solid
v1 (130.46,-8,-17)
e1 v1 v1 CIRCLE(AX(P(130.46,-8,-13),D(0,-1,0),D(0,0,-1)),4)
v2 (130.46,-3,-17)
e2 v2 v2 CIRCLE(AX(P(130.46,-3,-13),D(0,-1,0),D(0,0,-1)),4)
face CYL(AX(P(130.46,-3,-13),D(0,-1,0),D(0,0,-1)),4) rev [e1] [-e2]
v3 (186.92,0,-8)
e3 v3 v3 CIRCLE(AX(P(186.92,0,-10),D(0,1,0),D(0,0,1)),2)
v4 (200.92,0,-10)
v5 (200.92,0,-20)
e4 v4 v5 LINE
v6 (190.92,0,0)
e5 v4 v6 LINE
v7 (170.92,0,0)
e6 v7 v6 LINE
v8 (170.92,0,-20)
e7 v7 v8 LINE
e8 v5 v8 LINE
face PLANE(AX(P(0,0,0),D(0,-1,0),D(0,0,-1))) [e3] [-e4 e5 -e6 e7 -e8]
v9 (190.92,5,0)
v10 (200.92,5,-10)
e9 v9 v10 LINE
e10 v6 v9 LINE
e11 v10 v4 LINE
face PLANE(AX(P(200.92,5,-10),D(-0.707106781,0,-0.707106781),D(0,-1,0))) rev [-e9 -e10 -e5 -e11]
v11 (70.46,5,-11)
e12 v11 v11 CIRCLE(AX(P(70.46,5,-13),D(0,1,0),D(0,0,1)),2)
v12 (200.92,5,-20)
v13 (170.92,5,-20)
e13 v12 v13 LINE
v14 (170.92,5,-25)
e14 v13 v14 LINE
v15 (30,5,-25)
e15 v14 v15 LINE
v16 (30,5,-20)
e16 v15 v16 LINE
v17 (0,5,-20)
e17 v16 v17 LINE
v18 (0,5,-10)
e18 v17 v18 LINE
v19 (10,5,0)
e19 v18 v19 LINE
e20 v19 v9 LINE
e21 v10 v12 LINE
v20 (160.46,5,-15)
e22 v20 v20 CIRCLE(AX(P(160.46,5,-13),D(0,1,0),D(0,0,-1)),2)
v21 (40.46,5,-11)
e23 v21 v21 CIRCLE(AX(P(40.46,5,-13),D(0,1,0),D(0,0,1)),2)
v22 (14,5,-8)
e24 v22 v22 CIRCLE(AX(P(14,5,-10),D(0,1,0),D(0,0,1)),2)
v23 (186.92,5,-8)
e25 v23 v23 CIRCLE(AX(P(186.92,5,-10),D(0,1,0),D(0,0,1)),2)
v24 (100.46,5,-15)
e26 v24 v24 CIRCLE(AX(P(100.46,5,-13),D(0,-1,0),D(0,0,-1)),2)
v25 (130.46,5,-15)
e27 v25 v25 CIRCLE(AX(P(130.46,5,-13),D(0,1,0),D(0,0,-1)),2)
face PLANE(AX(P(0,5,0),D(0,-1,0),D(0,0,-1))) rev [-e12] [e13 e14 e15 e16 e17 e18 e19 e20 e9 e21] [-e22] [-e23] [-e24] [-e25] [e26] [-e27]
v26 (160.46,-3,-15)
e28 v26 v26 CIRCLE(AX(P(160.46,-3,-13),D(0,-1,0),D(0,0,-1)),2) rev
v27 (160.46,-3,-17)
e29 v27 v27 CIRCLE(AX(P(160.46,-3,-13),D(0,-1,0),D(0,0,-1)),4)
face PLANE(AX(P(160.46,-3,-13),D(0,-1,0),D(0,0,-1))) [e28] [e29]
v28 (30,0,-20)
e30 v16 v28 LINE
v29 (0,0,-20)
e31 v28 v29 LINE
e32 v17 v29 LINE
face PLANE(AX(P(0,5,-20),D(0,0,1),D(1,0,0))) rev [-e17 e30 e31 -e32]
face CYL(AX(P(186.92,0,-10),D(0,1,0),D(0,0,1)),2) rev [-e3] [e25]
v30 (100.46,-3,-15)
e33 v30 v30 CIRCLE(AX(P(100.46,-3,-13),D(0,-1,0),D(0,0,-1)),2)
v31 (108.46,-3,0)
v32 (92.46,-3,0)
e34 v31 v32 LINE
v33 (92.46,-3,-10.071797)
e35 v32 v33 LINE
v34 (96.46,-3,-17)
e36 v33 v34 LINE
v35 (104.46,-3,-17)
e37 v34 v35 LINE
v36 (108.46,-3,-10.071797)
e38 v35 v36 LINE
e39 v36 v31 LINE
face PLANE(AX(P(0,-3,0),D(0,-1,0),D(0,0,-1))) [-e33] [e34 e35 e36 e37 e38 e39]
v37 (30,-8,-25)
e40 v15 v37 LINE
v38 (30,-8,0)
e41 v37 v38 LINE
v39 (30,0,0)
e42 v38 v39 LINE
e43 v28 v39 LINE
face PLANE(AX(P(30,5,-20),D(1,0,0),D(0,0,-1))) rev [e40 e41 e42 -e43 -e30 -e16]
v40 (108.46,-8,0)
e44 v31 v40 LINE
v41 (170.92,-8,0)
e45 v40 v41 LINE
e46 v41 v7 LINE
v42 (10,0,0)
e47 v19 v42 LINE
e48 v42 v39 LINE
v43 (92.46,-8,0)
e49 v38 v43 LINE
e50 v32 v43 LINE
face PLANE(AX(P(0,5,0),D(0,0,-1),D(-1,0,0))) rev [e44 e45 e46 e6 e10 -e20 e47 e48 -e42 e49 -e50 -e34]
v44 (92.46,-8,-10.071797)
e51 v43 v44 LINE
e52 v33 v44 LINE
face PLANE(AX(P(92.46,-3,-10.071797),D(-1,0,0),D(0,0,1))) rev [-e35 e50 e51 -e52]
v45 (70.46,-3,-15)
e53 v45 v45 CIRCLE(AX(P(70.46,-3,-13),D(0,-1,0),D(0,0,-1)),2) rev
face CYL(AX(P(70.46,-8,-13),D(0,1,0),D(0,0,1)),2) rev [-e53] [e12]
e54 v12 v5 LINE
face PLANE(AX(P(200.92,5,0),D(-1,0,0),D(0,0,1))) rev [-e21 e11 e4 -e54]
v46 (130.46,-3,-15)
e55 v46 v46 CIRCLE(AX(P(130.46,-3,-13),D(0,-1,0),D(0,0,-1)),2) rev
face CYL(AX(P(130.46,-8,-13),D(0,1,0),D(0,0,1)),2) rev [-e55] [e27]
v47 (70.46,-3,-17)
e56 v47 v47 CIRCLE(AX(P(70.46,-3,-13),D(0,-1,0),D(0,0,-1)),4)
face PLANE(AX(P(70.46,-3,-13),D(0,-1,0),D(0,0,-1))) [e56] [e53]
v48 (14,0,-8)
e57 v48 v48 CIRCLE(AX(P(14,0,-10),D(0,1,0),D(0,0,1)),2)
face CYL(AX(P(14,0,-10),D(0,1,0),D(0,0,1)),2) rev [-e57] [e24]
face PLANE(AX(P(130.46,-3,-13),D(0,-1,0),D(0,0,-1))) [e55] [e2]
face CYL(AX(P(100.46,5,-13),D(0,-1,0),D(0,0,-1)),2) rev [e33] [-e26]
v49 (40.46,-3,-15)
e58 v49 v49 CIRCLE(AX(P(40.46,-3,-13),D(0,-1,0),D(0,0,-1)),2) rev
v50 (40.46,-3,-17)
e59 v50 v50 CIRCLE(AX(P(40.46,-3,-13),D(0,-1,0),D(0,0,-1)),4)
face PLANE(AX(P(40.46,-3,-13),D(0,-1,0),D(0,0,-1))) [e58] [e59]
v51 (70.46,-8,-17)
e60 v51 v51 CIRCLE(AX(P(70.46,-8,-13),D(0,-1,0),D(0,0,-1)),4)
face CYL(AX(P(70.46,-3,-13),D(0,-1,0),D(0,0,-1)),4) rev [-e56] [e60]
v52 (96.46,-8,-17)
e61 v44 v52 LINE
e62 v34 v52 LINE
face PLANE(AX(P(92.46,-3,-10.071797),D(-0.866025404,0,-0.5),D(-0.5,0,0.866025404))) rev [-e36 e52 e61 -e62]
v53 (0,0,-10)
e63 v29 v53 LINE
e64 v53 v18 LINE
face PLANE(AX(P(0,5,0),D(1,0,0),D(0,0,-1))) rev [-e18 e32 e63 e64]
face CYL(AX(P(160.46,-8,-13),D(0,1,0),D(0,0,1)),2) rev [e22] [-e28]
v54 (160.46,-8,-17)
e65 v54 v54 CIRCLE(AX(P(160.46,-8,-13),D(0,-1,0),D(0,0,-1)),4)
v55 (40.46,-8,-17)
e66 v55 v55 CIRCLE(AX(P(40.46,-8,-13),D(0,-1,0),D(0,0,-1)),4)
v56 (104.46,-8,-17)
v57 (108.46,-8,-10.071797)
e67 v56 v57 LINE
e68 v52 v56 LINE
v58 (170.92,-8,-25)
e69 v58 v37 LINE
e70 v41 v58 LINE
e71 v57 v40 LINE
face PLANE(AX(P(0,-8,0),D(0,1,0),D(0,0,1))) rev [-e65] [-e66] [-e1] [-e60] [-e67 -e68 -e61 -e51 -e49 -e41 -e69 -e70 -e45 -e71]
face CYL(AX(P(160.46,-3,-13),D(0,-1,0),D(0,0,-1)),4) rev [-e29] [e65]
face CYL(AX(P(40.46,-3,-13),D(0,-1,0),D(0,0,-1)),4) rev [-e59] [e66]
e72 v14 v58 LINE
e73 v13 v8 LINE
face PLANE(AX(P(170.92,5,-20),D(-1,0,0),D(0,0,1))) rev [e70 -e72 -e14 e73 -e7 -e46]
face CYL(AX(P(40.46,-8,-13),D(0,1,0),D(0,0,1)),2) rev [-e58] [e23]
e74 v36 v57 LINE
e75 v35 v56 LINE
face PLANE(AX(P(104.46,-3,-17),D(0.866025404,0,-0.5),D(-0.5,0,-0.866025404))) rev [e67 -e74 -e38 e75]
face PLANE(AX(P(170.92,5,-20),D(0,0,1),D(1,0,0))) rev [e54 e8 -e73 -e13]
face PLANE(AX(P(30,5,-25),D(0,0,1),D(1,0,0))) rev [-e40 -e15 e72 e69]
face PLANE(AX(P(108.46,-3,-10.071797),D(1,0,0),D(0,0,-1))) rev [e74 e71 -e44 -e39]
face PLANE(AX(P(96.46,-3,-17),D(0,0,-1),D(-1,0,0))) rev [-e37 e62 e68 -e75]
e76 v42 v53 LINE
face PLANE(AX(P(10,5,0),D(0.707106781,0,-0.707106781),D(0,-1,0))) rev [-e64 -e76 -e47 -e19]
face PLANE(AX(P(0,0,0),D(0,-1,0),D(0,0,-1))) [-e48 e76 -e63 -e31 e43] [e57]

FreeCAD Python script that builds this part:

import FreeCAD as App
import Part
import Sketcher
from FreeCAD import Vector
Q = App.Units.Quantity


def edges_at(feature, points):
    """Names of the edges that pass closest to the given points."""
    edges = feature.Shape.Edges
    near = lambda p: min(range(len(edges)), key=lambda i: edges[i].distToShape(Part.Vertex(*p))[0])
    return sorted({f"Edge{near(p) + 1}" for p in points})


def add_polygon(sketch, points):
    """Adds a closed chain of lines whose ends are joined by coincident constraints."""
    first, n = sketch.GeometryCount, len(points)
    for a, b in zip(points, points[1:] + points[:1]):
        sketch.addGeometry(Part.LineSegment(App.Vector(*a, 0), App.Vector(*b, 0)), False)
    for i in range(n):
        sketch.addConstraint(Sketcher.Constraint("Coincident", first + i, 2, first + (i + 1) % n, 1))

doc = App.newDocument("Part")
body = doc.addObject("PartDesign::Body", "Body")

# Sketch on XZ plane
sketch1 = body.newObject("Sketcher::SketchObject", "Sketch")
sketch1.AttachmentSupport = (doc.getObject("XZ_Plane"), [""])
sketch1.MapMode = "FlatFace"
add_polygon(sketch1, [(201, -20), (171, -20), (171, -25), (30, -25), (30, -20), (0, -20), (0, 0), (201, 0)])  # lines 0-7
sketch1.addConstraint(Sketcher.Constraint("Horizontal", 0))
sketch1.addConstraint(Sketcher.Constraint("Vertical", 1))
sketch1.addConstraint(Sketcher.Constraint("Horizontal", 2))
sketch1.addConstraint(Sketcher.Constraint("Vertical", 3))
sketch1.addConstraint(Sketcher.Constraint("Horizontal", 4))
sketch1.addConstraint(Sketcher.Constraint("Vertical", 5))
sketch1.addConstraint(Sketcher.Constraint("Horizontal", 6))
sketch1.addConstraint(Sketcher.Constraint("Vertical", 7))
sketch1.addConstraint(Sketcher.Constraint("Coincident", 5, 2, -1, 1))
sketch1.addConstraint(Sketcher.Constraint("Horizontal", 0, 2, 3, 2))
sketch1.addConstraint(Sketcher.Constraint("Equal", 0, 4))
sketch1.addConstraint(Sketcher.Constraint("DistanceX", 0, 2, 0, 1, Q("30 mm")))
sketch1.addConstraint(Sketcher.Constraint("DistanceY", 1, 2, 1, 1, Q("5 mm")))
sketch1.addConstraint(Sketcher.Constraint("DistanceY", 5, 1, 5, 2, Q("20 mm")))
sketch1.addConstraint(Sketcher.Constraint("DistanceX", 2, 2, 2, 1, Q("140.92 mm")))
pad1 = body.newObject("PartDesign::Pad", "Pad")
pad1.Profile = sketch1
pad1.Length = 5
pad1.Reversed = True

# Sketch on XZ plane
sketch2 = body.newObject("Sketcher::SketchObject", "Sketch001")
sketch2.AttachmentSupport = (doc.getObject("XZ_Plane"), [""])
sketch2.MapMode = "FlatFace"
sketch2.AttachmentOffset = App.Placement(Vector(0, 0, -5), App.Rotation())
sketch2.addGeometry(Part.Circle(Vector(14, -10, 0), Vector(0, 0, 1), 2), False)
sketch2.addGeometry(Part.Circle(Vector(186.9, -10, 0), Vector(0, 0, 1), 2), False)
sketch2.addConstraint(Sketcher.Constraint("Equal", 0, 1))
sketch2.addConstraint(Sketcher.Constraint("Horizontal", 0, 3, 1, 3))
sketch2.addConstraint(Sketcher.Constraint("Diameter", 0, Q("4 mm")))
sketch2.addConstraint(Sketcher.Constraint("DistanceX", -1, 1, 0, 3, Q("14 mm")))
sketch2.addConstraint(Sketcher.Constraint("DistanceY", 0, 3, -1, 1, Q("10 mm")))
sketch2.addConstraint(Sketcher.Constraint("DistanceX", -1, 1, 1, 3, Q("186.92 mm")))
pocket1 = body.newObject("PartDesign::Pocket", "Pocket")
pocket1.Profile = sketch2
pocket1.Type = "ThroughAll"
pocket1.Reversed = True

# Sketch on XZ plane
sketch3 = body.newObject("Sketcher::SketchObject", "Sketch002")
sketch3.AttachmentSupport = (doc.getObject("XZ_Plane"), [""])
sketch3.MapMode = "FlatFace"
add_polygon(sketch3, [(30, -25), (30, 0), (171, 0), (171, -25)])  # lines 0-3
sketch3.addConstraint(Sketcher.Constraint("Vertical", 0))
sketch3.addConstraint(Sketcher.Constraint("Horizontal", 1))
sketch3.addConstraint(Sketcher.Constraint("Vertical", 2))
sketch3.addConstraint(Sketcher.Constraint("Horizontal", 3))
sketch3.addConstraint(Sketcher.Constraint("PointOnObject", 0, 2, -1))
sketch3.addConstraint(Sketcher.Constraint("DistanceY", 0, 1, 0, 2, Q("25 mm")))
sketch3.addConstraint(Sketcher.Constraint("DistanceX", -1, 1, 0, 2, Q("30 mm")))
sketch3.addConstraint(Sketcher.Constraint("DistanceX", 1, 1, 1, 2, Q("140.92 mm")))
pad2 = body.newObject("PartDesign::Pad", "Pad001")
pad2.Profile = sketch3
pad2.Length = 8

# Sketch on XZ plane
sketch4 = body.newObject("Sketcher::SketchObject", "Sketch003")
sketch4.AttachmentSupport = (doc.getObject("XZ_Plane"), [""])
sketch4.MapMode = "FlatFace"
sketch4.AttachmentOffset = App.Placement(Vector(0, 0, -5), App.Rotation())
sketch4.addGeometry(Part.Circle(Vector(70.5, -13, 0), Vector(0, 0, 1), 2), False)
sketch4.addGeometry(Part.Circle(Vector(40.5, -13, 0), Vector(0, 0, 1), 2), False)
sketch4.addGeometry(Part.Circle(Vector(160.5, -13, 0), Vector(0, 0, 1), 2), False)
sketch4.addGeometry(Part.Circle(Vector(130.5, -13, 0), Vector(0, 0, 1), 2), False)
sketch4.addConstraint(Sketcher.Constraint("Equal", 0, 1))
sketch4.addConstraint(Sketcher.Constraint("Equal", 1, 2))
sketch4.addConstraint(Sketcher.Constraint("Equal", 2, 3))
sketch4.addConstraint(Sketcher.Constraint("Horizontal", 0, 3, 1, 3))
sketch4.addConstraint(Sketcher.Constraint("Horizontal", 1, 3, 2, 3))
sketch4.addConstraint(Sketcher.Constraint("Horizontal", 2, 3, 3, 3))
sketch4.addConstraint(Sketcher.Constraint("Diameter", 0, Q("4 mm")))
sketch4.addConstraint(Sketcher.Constraint("DistanceY", 0, 3, -1, 1, Q("13 mm")))
sketch4.addConstraint(Sketcher.Constraint("DistanceX", 1, 3, 0, 3, Q("30 mm")))
sketch4.addConstraint(Sketcher.Constraint("DistanceX", 0, 3, 2, 3, Q("90 mm")))
sketch4.addConstraint(Sketcher.Constraint("DistanceX", 3, 3, 2, 3, Q("30 mm")))
sketch4.addConstraint(Sketcher.Constraint("DistanceX", -1, 1, 0, 3, Q("70.46 mm")))
pocket2 = body.newObject("PartDesign::Pocket", "Pocket001")
pocket2.Profile = sketch4
pocket2.Type = "ThroughAll"
pocket2.Reversed = True

# Sketch on XZ plane
sketch5 = body.newObject("Sketcher::SketchObject", "Sketch004")
sketch5.AttachmentSupport = (doc.getObject("XZ_Plane"), [""])
sketch5.MapMode = "FlatFace"
sketch5.AttachmentOffset = App.Placement(Vector(0, 0, 8), App.Rotation())
sketch5.addGeometry(Part.Circle(Vector(40.5, -13, 0), Vector(0, 0, 1), 4), False)
sketch5.addGeometry(Part.Circle(Vector(130.5, -13, 0), Vector(0, 0, 1), 4), False)
sketch5.addGeometry(Part.Circle(Vector(160.5, -13, 0), Vector(0, 0, 1), 4), False)
sketch5.addGeometry(Part.Circle(Vector(70.5, -13, 0), Vector(0, 0, 1), 4), False)
sketch5.addConstraint(Sketcher.Constraint("Equal", 0, 1))
sketch5.addConstraint(Sketcher.Constraint("Equal", 1, 2))
sketch5.addConstraint(Sketcher.Constraint("Equal", 2, 3))
sketch5.addConstraint(Sketcher.Constraint("Horizontal", 0, 3, 1, 3))
sketch5.addConstraint(Sketcher.Constraint("Horizontal", 1, 3, 2, 3))
sketch5.addConstraint(Sketcher.Constraint("Horizontal", 2, 3, 3, 3))
sketch5.addConstraint(Sketcher.Constraint("Diameter", 0, Q("8 mm")))
sketch5.addConstraint(Sketcher.Constraint("DistanceY", 0, 3, -1, 1, Q("13 mm")))
sketch5.addConstraint(Sketcher.Constraint("DistanceX", 0, 3, 1, 3, Q("90 mm")))
sketch5.addConstraint(Sketcher.Constraint("DistanceX", 1, 3, 2, 3, Q("30 mm")))
sketch5.addConstraint(Sketcher.Constraint("DistanceX", 0, 3, 3, 3, Q("30 mm")))
sketch5.addConstraint(Sketcher.Constraint("DistanceX", -1, 1, 0, 3, Q("40.46 mm")))
pocket3 = body.newObject("PartDesign::Pocket", "Pocket002")
pocket3.Profile = sketch5
pocket3.Length = 5
doc.recompute()

chamfer = body.newObject("PartDesign::Chamfer", "Chamfer")
chamfer.Base = (pocket3, edges_at(pocket3, [(200.92, 2.5, 0), (0, 2.5, 0)]))
chamfer.Size = 10

# Sketch on XZ plane
sketch6 = body.newObject("Sketcher::SketchObject", "Sketch005")
sketch6.AttachmentSupport = (doc.getObject("XZ_Plane"), [""])
sketch6.MapMode = "FlatFace"
sketch6.AttachmentOffset = App.Placement(Vector(0, 0, 8), App.Rotation())
add_polygon(sketch6, [(108, 0), (92, 0), (92, -10), (96, -17), (104, -17), (108, -10)])  # lines 0-5
sketch6.addConstraint(Sketcher.Constraint("Horizontal", 0))
sketch6.addConstraint(Sketcher.Constraint("Vertical", 1))
sketch6.addConstraint(Sketcher.Constraint("Horizontal", 3))
sketch6.addConstraint(Sketcher.Constraint("Vertical", 5))
sketch6.addConstraint(Sketcher.Constraint("PointOnObject", 0, 2, -1))
sketch6.addConstraint(Sketcher.Constraint("Horizontal", 1, 2, 4, 2))
sketch6.addConstraint(Sketcher.Constraint("Equal", 2, 4))
sketch6.addConstraint(Sketcher.Constraint("DistanceX", 0, 2, 0, 1, Q("16 mm")))
sketch6.addConstraint(Sketcher.Constraint("DistanceX", 3, 1, 3, 2, Q("8 mm")))
sketch6.addConstraint(Sketcher.Constraint("Angle", 2, Q("-60 deg")))
sketch6.addConstraint(Sketcher.Constraint("DistanceY", 2, 2, -1, 1, Q("17 mm")))
sketch6.addConstraint(Sketcher.Constraint("DistanceX", -1, 1, 0, 2, Q("92.46 mm")))
pocket4 = body.newObject("PartDesign::Pocket", "Pocket003")
pocket4.Profile = sketch6
pocket4.Length = 5

# Sketch on XZ plane
sketch7 = body.newObject("Sketcher::SketchObject", "Sketch006")
sketch7.AttachmentSupport = (doc.getObject("XZ_Plane"), [""])
sketch7.MapMode = "FlatFace"
sketch7.AttachmentOffset = App.Placement(Vector(0, 0, 3), App.Rotation())
sketch7.addGeometry(Part.Circle(Vector(100.5, -13, 0), Vector(0, 0, 1), 2), False)
sketch7.addConstraint(Sketcher.Constraint("Diameter", 0, Q("4 mm")))
sketch7.addConstraint(Sketcher.Constraint("DistanceY", 0, 3, -1, 1, Q("13 mm")))
sketch7.addConstraint(Sketcher.Constraint("DistanceX", -1, 1, 0, 3, Q("100.46 mm")))
pocket5 = body.newObject("PartDesign::Pocket", "Pocket004")
pocket5.Profile = sketch7
pocket5.Type = "ThroughAll"

doc.recompute()
